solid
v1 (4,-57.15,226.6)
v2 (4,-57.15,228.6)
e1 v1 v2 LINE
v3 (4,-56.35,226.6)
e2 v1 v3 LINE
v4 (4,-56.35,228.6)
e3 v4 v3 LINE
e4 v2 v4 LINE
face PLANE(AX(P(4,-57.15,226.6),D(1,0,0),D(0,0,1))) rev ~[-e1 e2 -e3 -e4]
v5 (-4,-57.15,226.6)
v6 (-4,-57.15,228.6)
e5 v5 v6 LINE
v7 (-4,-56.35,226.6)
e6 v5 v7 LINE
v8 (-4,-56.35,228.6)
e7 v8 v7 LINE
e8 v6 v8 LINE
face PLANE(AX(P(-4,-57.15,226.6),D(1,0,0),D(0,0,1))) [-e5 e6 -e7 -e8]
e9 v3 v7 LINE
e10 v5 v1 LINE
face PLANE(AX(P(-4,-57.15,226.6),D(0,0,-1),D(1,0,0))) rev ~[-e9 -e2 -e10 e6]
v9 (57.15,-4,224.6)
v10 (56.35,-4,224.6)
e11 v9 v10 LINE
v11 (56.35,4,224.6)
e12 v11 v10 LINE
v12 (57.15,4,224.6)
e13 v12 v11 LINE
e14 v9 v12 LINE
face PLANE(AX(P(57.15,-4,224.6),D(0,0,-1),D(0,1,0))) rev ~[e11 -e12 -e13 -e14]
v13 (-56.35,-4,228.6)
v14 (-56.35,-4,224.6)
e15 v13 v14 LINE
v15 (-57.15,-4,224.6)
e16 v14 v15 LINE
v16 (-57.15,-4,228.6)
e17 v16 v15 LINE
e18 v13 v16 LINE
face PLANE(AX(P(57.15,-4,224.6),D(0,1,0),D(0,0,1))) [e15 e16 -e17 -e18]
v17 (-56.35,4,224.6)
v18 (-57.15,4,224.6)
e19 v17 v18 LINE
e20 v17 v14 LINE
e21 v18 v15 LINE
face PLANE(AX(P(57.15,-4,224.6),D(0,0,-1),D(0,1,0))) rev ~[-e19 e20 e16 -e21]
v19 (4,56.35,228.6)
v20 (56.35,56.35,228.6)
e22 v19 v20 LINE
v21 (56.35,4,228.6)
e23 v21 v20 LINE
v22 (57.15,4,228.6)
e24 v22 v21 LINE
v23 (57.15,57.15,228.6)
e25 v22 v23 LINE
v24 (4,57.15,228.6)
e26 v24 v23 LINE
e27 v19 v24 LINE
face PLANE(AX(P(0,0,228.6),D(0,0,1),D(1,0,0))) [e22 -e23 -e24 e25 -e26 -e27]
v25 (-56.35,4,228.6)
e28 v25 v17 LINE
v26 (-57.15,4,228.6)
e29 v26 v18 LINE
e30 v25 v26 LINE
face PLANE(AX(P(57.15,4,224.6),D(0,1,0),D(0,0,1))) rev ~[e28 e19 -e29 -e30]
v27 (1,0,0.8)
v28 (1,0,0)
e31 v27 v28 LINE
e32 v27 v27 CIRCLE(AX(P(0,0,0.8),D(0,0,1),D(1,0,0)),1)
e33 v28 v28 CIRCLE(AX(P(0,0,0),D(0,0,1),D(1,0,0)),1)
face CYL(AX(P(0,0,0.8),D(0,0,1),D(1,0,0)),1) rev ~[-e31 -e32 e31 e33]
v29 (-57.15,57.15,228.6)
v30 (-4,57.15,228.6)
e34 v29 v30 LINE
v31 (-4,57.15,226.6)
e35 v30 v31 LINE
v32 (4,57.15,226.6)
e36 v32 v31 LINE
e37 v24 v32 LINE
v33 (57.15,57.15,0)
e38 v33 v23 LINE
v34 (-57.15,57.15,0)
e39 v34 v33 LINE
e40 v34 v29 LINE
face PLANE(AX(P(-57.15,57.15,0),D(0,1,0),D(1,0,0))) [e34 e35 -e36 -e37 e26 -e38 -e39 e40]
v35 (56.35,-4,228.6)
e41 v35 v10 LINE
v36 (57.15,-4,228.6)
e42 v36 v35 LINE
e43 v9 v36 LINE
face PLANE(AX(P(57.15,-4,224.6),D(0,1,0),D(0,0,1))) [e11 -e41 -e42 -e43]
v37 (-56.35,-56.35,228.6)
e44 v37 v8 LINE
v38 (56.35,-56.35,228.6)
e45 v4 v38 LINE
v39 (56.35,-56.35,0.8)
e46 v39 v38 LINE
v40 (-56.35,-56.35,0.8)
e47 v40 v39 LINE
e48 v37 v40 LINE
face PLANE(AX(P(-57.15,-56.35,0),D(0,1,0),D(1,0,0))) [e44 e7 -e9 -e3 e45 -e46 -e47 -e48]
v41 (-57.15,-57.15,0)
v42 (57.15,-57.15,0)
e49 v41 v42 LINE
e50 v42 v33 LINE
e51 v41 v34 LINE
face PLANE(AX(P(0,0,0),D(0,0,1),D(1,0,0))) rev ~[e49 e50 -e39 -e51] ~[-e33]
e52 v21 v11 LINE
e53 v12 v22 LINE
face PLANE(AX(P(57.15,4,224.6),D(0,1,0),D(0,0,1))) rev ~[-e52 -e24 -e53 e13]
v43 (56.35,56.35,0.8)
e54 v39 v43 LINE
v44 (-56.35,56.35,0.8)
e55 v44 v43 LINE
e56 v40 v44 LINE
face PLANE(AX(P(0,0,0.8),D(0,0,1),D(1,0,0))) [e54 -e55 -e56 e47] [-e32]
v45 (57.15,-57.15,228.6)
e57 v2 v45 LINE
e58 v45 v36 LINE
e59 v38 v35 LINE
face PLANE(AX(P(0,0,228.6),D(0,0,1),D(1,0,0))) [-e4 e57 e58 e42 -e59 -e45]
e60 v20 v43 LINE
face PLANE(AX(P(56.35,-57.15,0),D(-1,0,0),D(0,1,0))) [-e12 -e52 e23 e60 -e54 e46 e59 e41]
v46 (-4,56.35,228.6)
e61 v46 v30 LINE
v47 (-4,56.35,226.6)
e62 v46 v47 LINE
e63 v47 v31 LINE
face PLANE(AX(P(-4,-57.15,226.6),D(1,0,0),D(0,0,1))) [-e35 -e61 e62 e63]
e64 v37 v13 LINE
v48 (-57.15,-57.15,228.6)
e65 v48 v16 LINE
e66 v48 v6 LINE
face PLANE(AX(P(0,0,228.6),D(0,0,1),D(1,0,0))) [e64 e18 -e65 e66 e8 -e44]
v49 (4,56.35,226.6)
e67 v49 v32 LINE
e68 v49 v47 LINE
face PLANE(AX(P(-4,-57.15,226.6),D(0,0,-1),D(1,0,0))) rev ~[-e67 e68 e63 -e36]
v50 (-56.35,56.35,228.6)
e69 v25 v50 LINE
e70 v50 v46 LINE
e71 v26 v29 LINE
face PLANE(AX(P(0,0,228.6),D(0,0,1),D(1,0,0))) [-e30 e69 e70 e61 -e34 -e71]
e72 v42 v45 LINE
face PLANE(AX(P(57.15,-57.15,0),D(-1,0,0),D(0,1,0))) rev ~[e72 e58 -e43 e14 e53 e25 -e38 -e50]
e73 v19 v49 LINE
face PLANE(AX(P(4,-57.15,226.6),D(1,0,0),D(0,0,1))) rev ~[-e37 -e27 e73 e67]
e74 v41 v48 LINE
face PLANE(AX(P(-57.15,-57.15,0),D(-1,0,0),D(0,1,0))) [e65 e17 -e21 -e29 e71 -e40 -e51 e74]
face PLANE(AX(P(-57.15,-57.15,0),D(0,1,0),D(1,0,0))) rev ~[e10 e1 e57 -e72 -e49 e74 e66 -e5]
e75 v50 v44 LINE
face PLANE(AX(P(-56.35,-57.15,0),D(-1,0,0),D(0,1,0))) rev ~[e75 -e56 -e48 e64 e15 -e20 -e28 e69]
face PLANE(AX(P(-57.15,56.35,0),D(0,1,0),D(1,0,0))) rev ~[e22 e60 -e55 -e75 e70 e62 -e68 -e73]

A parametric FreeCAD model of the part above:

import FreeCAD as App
import Part
import Sketcher
from FreeCAD import Vector


def faces_at(feature, points):
    """Names of the faces that lie closest to the given points."""
    faces = feature.Shape.Faces
    near = lambda p: min(range(len(faces)), key=lambda i: faces[i].distToShape(Part.Vertex(*p))[0])
    return sorted({f"Face{near(p) + 1}" for p in points})


def add_polygon(sketch, points):
    """Adds a closed chain of lines whose ends are joined by coincident constraints."""
    first, n = sketch.GeometryCount, len(points)
    for a, b in zip(points, points[1:] + points[:1]):
        sketch.addGeometry(Part.LineSegment(App.Vector(*a, 0), App.Vector(*b, 0)), False)
    for i in range(n):
        sketch.addConstraint(Sketcher.Constraint("Coincident", first + i, 2, first + (i + 1) % n, 1))

doc = App.newDocument("Part")
params = doc.addObject("Spreadsheet::Sheet", "Params")
for row, (alias, value) in enumerate([
    ("sketch1_width", "114.3 mm"),
    ("pad1_length", "228.6 mm"),
    ("thickness_wall", "0.8 mm"),
    ("sketch2_diameter", "2 mm"),
    ("pocket1_length", "25.4 mm"),
    ("sketch3_width", "8 mm"),
    ("sketch3_height", "2 mm"),
    ("sketch4_width", "8 mm"),
    ("sketch4_height", "4 mm"),
], start=1):
    params.set(f"A{row}", alias)
    params.set(f"B{row}", "=" + value)
    params.setAlias(f"B{row}", alias)

body = doc.addObject("PartDesign::Body", "Body")

sketch1 = body.newObject("Sketcher::SketchObject", "Sketch")
sketch1.AttachmentSupport = (doc.getObject("XY_Plane"), [""])
sketch1.MapMode = "FlatFace"
add_polygon(sketch1, [(-57.15, 57.15), (-57.15, -57.15), (57.15, -57.15), (57.15, 57.15)])
sketch1.addConstraint([
    Sketcher.Constraint("Vertical", 0),
    Sketcher.Constraint("Horizontal", 1),
    Sketcher.Constraint("Vertical", 2),
    Sketcher.Constraint("Horizontal", 3),
    Sketcher.Constraint("Symmetric", 0, 2, 2, 2, -1, 1),
    Sketcher.Constraint("Equal", 3, 0),
    Sketcher.Constraint("DistanceX", 1, 1, 1, 2, 114.3),
])
sketch1.setExpression("Constraints[10]", "Params.sketch1_width")
pad1 = body.newObject("PartDesign::Pad", "Pad")
pad1.Profile = sketch1
pad1.setExpression("Length", "Params.pad1_length")
doc.recompute()

thickness = body.newObject("PartDesign::Thickness", "Thickness")
thickness.Base = (pad1, faces_at(pad1, [(0, 0, 228.6)]))
thickness.setExpression("Value", "Params.thickness_wall")
thickness.Reversed = True
thickness.Join = "Arc"

sketch2 = body.newObject("Sketcher::SketchObject", "Sketch001")
sketch2.AttachmentSupport = (doc.getObject("XY_Plane"), [""])
sketch2.MapMode = "FlatFace"
sketch2.AttachmentOffset = App.Placement(Vector(0, 0, 0.8), App.Rotation())
sketch2.addGeometry(Part.Circle(Vector(0, 0, 0), Vector(0, 0, 1), 1), False)
sketch2.addConstraint([
    Sketcher.Constraint("Coincident", 0, 3, -1, 1),
    Sketcher.Constraint("Diameter", 0, 2.0),
])
sketch2.setExpression("Constraints[1]", "Params.sketch2_diameter")
pocket1 = body.newObject("PartDesign::Pocket", "Pocket")
pocket1.Profile = sketch2
pocket1.setExpression("Length", "Params.pocket1_length")

sketch3 = body.newObject("Sketcher::SketchObject", "Sketch002")
sketch3.AttachmentSupport = (doc.getObject("XZ_Plane"), [""])
sketch3.MapMode = "FlatFace"
sketch3.AttachmentOffset = App.Placement(Vector(0, 0, 57.15), App.Rotation())
add_polygon(sketch3, [(-4, 228.6), (-4, 226.6), (4, 226.6), (4, 228.6)])
sketch3.addConstraint([
    Sketcher.Constraint("Vertical", 0),
    Sketcher.Constraint("Horizontal", 1),
    Sketcher.Constraint("Vertical", 2),
    Sketcher.Constraint("Horizontal", 3),
    Sketcher.Constraint("DistanceX", 1, 1, 1, 2, 8.0),
    Sketcher.Constraint("DistanceY", 0, 2, 0, 1, 2.0),
    Sketcher.Constraint("DistanceX", 0, 2, -1, 1, 4.0),
    Sketcher.Constraint("DistanceY", -1, 1, 0, 2, 226.6),
])
sketch3.setExpression("Constraints[8]", "Params.sketch3_width")
sketch3.setExpression("Constraints[9]", "Params.sketch3_height")
pocket2 = body.newObject("PartDesign::Pocket", "Pocket001")
pocket2.Profile = sketch3
pocket2.Type = "ThroughAll"

sketch4 = body.newObject("Sketcher::SketchObject", "Sketch003")
sketch4.AttachmentSupport = (doc.getObject("YZ_Plane"), [""])
sketch4.MapMode = "FlatFace"
sketch4.AttachmentOffset = App.Placement(Vector(0, 0, 57.15), App.Rotation())
add_polygon(sketch4, [(-4, 228.6), (-4, 224.6), (4, 224.6), (4, 228.6)])
sketch4.addConstraint([
    Sketcher.Constraint("Vertical", 0),
    Sketcher.Constraint("Horizontal", 1),
    Sketcher.Constraint("Vertical", 2),
    Sketcher.Constraint("Horizontal", 3),
    Sketcher.Constraint("DistanceX", 1, 1, 1, 2, 8.0),
    Sketcher.Constraint("DistanceY", 0, 2, 0, 1, 4.0),
    Sketcher.Constraint("DistanceX", 0, 2, -1, 1, 4.0),
    Sketcher.Constraint("DistanceY", -1, 1, 0, 2, 224.6),
])
sketch4.setExpression("Constraints[8]", "Params.sketch4_width")
sketch4.setExpression("Constraints[9]", "Params.sketch4_height")
pocket3 = body.newObject("PartDesign::Pocket", "Pocket002")
pocket3.Profile = sketch4
pocket3.Type = "ThroughAll"

doc.recompute()
